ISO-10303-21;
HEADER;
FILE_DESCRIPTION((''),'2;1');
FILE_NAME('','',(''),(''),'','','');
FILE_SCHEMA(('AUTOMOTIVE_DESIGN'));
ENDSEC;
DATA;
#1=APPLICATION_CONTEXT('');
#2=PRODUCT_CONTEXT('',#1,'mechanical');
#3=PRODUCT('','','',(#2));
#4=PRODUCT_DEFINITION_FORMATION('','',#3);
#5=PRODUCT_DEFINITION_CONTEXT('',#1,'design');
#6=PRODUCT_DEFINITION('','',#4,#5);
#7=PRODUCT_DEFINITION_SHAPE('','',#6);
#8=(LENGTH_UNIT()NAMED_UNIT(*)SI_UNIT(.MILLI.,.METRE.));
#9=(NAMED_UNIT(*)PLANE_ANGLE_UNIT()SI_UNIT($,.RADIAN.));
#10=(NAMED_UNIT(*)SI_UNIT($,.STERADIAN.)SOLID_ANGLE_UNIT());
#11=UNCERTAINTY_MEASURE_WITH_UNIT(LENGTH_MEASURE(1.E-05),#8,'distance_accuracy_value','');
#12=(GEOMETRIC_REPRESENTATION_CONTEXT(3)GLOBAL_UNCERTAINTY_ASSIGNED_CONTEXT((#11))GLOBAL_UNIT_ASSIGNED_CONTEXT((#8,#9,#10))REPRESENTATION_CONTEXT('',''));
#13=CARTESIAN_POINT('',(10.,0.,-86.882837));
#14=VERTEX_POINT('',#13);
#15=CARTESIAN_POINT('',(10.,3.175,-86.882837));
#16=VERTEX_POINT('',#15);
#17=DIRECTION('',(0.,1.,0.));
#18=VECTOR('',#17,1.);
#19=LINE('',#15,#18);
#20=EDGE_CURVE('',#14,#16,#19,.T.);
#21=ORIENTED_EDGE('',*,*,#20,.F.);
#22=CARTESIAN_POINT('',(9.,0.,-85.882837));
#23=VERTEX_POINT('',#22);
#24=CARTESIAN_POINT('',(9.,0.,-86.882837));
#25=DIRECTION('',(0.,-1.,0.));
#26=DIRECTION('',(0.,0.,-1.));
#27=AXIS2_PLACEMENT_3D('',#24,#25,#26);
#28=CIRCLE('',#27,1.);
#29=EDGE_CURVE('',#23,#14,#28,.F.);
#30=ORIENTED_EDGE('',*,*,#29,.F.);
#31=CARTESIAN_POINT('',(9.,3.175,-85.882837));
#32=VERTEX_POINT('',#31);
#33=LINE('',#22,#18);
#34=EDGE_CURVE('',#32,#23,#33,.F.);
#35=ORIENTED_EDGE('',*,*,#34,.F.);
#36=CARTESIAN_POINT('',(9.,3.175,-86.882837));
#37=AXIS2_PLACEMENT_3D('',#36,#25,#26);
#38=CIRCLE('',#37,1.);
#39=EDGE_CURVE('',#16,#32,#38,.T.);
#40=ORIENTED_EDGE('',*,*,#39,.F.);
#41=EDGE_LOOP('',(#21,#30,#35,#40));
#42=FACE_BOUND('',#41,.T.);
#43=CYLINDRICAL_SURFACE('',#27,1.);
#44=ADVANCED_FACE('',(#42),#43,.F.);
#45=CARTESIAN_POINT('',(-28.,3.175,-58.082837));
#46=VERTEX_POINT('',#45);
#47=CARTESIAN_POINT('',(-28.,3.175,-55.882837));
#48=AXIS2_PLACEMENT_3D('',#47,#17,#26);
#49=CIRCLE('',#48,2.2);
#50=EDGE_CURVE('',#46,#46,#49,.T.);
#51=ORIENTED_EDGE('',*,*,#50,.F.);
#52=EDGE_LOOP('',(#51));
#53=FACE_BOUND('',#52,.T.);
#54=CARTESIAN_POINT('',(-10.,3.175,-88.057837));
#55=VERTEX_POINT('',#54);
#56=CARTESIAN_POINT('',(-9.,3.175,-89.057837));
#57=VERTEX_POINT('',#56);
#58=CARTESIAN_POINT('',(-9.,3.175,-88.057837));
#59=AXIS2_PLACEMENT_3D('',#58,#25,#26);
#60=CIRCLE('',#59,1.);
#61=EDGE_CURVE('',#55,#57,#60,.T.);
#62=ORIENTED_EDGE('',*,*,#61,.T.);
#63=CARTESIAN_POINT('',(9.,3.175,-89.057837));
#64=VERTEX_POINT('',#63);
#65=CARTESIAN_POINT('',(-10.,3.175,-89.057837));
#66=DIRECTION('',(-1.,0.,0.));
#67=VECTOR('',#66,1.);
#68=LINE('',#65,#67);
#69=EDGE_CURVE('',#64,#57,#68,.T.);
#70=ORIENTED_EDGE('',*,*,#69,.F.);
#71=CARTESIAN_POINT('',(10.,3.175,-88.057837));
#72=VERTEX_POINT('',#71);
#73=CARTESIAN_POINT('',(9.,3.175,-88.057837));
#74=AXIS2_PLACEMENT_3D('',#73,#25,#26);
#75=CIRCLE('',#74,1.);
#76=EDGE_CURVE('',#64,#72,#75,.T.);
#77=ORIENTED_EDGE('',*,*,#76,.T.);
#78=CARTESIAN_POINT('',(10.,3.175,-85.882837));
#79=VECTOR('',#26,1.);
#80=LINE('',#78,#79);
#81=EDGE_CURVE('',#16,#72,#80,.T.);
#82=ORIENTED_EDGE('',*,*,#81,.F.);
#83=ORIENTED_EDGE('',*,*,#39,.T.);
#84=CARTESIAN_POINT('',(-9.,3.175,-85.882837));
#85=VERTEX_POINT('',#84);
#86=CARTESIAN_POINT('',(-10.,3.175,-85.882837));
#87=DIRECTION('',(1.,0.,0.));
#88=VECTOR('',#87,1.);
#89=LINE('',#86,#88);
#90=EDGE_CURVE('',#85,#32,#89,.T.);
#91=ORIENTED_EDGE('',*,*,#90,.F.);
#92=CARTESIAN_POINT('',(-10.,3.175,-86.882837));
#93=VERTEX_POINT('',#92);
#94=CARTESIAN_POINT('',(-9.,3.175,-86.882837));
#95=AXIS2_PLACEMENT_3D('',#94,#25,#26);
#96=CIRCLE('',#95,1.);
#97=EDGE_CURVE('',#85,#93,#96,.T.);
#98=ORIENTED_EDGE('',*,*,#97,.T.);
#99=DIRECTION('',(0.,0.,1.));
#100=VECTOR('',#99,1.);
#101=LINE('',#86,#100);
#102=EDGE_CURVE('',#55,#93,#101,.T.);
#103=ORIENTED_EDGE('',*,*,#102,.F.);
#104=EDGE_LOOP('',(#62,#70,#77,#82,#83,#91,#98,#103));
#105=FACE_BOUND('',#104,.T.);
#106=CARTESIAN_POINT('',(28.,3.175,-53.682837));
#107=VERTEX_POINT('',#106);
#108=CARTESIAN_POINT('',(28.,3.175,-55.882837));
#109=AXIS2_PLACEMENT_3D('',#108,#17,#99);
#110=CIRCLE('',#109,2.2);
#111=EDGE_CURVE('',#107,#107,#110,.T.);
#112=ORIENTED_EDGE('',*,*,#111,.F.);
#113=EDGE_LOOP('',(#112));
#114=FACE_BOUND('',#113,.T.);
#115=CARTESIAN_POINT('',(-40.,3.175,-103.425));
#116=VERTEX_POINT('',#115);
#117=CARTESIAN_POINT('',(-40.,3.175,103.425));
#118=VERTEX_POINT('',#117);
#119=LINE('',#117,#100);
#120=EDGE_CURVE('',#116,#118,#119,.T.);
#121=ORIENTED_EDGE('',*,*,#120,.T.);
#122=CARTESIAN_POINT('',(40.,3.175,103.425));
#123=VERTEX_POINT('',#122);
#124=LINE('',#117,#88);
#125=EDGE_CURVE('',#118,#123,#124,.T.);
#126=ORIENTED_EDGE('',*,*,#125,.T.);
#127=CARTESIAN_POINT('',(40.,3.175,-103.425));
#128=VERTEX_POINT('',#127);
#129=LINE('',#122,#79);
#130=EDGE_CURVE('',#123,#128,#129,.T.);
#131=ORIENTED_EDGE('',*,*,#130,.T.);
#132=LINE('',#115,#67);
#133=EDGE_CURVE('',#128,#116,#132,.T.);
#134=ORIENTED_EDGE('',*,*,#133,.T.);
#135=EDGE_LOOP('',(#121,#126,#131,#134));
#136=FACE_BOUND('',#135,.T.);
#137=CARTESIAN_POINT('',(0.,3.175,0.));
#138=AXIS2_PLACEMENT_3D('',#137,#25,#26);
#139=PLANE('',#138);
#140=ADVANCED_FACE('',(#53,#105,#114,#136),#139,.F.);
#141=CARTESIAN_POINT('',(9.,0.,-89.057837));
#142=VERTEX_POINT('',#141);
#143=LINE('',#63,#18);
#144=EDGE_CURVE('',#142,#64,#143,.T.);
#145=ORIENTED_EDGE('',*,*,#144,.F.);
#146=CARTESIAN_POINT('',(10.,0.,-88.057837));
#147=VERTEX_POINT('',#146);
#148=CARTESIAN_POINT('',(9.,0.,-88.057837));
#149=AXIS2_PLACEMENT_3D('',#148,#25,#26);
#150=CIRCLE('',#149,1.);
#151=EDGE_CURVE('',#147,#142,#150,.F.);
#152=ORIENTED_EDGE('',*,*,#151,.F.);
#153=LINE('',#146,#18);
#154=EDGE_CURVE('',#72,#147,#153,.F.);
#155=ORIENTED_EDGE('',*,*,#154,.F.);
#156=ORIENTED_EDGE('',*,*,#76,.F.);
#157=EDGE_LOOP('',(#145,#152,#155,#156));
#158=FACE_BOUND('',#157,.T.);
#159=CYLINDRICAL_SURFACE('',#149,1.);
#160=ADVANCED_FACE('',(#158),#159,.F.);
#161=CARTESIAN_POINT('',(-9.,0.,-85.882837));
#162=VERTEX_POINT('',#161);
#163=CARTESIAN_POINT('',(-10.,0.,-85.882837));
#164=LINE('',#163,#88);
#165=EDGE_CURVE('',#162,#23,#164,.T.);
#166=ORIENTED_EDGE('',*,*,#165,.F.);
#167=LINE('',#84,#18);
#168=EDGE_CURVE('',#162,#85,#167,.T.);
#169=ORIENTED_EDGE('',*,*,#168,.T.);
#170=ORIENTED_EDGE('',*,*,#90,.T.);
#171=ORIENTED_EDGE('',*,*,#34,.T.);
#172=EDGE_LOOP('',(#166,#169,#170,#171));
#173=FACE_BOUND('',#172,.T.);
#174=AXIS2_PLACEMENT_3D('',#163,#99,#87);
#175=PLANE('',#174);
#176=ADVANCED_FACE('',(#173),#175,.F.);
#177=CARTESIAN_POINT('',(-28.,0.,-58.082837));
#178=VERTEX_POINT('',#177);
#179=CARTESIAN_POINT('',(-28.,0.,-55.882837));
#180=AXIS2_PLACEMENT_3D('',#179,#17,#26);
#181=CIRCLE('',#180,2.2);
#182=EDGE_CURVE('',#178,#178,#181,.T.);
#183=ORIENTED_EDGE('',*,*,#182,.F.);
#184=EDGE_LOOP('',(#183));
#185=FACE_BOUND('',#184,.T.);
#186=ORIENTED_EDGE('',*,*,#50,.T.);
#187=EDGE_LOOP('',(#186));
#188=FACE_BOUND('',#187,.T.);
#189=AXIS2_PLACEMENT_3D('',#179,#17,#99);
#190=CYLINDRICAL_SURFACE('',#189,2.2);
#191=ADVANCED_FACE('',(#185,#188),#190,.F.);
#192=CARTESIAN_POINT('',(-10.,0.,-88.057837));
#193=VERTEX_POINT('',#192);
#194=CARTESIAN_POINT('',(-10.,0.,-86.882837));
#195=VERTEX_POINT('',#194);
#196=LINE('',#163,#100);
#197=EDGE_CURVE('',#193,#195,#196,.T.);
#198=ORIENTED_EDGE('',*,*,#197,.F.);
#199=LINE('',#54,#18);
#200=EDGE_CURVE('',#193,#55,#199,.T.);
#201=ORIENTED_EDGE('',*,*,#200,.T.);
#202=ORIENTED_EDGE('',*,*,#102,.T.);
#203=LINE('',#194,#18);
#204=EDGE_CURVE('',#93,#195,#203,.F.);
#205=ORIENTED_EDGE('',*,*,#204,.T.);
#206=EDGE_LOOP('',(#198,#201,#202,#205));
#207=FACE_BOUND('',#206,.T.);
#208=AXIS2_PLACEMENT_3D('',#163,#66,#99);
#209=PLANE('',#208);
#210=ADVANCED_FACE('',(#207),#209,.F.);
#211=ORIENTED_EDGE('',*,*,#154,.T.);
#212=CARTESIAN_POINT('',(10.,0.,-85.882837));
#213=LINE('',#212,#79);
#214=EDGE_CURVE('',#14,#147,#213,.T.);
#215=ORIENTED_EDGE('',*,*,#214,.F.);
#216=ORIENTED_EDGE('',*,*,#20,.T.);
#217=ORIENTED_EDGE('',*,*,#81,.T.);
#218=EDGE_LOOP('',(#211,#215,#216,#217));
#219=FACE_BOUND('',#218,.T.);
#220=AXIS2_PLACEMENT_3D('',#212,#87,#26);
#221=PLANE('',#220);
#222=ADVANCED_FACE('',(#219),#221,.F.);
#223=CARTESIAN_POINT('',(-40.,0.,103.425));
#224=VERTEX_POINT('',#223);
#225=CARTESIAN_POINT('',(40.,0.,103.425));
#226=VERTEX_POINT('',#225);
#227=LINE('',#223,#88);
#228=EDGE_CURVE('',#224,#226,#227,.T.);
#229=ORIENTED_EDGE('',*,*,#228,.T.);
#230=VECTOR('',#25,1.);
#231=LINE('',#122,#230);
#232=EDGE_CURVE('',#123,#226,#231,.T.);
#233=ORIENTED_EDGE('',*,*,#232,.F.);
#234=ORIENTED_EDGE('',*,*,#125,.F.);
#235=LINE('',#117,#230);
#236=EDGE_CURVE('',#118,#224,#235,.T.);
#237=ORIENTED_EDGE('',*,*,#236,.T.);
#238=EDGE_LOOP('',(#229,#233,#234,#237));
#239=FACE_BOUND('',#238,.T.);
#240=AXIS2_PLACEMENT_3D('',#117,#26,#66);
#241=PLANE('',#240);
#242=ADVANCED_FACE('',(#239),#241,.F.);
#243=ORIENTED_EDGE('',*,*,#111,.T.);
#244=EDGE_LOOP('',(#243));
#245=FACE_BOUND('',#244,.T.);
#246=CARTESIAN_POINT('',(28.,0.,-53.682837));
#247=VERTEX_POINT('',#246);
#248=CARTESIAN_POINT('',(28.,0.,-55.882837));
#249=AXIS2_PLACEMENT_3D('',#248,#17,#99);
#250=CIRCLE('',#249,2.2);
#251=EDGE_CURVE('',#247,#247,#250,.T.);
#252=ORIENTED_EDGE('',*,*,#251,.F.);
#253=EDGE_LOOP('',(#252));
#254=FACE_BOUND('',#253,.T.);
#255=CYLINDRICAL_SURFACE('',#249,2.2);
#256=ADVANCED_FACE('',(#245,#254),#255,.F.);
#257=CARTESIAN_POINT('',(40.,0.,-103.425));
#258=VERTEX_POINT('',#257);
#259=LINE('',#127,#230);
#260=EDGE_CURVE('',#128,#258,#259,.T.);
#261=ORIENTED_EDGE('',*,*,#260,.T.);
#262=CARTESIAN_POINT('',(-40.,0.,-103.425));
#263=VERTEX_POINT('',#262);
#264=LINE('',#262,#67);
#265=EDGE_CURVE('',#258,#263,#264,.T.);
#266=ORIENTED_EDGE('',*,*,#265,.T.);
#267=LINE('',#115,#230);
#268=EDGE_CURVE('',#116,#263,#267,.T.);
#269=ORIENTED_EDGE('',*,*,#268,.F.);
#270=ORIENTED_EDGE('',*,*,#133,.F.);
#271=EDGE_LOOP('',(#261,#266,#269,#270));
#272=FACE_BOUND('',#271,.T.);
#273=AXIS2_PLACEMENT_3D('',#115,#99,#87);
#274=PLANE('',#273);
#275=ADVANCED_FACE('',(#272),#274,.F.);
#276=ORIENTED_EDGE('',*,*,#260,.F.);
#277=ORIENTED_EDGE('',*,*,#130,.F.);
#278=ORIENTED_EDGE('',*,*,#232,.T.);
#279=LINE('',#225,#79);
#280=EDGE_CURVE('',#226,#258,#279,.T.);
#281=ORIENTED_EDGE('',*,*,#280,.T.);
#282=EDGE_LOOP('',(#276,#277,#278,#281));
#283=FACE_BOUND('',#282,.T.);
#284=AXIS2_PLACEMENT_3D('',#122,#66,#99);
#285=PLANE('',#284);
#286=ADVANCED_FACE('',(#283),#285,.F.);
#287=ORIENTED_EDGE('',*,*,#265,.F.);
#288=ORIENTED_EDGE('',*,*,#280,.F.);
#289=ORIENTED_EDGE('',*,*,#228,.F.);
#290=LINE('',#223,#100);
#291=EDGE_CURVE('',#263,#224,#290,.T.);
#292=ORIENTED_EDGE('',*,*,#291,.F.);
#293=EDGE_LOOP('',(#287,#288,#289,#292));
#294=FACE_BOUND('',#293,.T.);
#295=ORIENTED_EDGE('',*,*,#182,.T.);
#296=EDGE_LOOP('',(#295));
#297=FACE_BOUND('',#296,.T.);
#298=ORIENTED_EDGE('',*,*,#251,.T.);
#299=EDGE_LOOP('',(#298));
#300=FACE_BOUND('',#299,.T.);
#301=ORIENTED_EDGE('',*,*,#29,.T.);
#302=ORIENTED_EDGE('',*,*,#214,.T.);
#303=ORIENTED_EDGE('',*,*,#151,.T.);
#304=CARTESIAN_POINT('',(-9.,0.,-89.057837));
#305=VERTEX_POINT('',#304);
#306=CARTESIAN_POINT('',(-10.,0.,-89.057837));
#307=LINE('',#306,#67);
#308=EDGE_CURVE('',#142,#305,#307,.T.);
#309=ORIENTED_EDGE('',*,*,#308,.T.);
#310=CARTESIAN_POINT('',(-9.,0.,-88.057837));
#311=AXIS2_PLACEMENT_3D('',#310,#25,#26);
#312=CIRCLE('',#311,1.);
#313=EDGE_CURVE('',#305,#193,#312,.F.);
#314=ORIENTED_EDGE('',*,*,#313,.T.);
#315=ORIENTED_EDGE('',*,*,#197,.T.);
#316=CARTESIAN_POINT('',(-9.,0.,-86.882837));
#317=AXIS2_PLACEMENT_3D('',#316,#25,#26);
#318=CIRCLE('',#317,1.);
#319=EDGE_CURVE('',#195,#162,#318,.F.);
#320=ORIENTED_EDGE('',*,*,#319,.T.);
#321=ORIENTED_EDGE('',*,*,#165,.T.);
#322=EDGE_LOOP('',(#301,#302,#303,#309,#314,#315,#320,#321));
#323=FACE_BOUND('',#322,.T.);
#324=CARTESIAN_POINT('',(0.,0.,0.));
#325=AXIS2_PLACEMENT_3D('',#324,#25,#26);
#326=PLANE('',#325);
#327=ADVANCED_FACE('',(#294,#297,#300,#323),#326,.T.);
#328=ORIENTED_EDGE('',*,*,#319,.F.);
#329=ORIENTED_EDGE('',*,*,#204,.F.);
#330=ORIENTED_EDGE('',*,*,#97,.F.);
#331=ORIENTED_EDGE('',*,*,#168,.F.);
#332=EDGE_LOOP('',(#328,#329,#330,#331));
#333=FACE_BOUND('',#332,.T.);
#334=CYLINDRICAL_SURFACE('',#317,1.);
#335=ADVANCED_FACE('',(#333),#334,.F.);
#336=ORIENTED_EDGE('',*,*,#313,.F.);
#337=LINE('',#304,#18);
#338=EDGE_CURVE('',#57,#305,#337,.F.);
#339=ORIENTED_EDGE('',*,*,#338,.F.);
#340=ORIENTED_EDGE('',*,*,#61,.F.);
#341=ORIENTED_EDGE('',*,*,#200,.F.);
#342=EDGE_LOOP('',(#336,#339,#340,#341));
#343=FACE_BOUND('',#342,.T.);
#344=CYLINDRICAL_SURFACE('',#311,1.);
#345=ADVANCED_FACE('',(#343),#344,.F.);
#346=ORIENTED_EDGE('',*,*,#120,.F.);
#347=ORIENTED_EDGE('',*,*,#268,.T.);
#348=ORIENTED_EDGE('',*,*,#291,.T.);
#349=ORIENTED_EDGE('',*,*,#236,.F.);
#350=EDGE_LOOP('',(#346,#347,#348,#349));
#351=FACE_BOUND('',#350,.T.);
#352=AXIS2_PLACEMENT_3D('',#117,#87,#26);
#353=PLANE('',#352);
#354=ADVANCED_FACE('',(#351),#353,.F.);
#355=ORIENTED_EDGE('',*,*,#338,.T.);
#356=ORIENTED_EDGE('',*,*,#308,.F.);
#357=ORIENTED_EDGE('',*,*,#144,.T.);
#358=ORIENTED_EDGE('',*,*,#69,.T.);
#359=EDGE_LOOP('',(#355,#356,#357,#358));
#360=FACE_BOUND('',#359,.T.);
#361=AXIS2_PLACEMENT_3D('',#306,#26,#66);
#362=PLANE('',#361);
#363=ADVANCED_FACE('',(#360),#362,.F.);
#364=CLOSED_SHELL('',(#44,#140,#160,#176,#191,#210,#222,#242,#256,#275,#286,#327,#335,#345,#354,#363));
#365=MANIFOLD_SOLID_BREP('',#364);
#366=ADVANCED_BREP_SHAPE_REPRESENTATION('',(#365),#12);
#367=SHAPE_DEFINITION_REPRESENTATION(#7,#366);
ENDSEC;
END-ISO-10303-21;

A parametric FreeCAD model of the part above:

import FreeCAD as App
import Part
import Sketcher

V = App.Vector
Q = App.Units.Quantity


def edges_at(feature, points):
    """Names of the edges that pass closest to the given points."""
    edges = feature.Shape.Edges
    near = lambda p: min(range(len(edges)), key=lambda i: edges[i].distToShape(Part.Vertex(*p))[0])
    return sorted({f"Edge{near(p) + 1}" for p in points})

doc = App.newDocument("Part")
body = doc.addObject("PartDesign::Body", "Body")

# Sketch on XZ plane
sketch1 = body.newObject("Sketcher::SketchObject", "Sketch")
sketch1.AttachmentSupport = (doc.getObject("XZ_Plane"), [""])
sketch1.MapMode = "FlatFace"
sketch1.addGeometry([
    Part.LineSegment(V(-40, -103, 0), V(-40, 103, 0)),
    Part.LineSegment(V(-40, 103, 0), V(40, 103, 0)),
    Part.LineSegment(V(40, 103, 0), V(40, -103, 0)),
    Part.LineSegment(V(40, -103, 0), V(-40, -103, 0)),
], False)
sketch1.addConstraint([
    Sketcher.Constraint("Coincident", 0, 2, 1, 1),
    Sketcher.Constraint("Coincident", 1, 2, 2, 1),
    Sketcher.Constraint("Coincident", 2, 2, 3, 1),
    Sketcher.Constraint("Coincident", 3, 2, 0, 1),
    Sketcher.Constraint("Vertical", 0),
    Sketcher.Constraint("Horizontal", 1),
    Sketcher.Constraint("Vertical", 2),
    Sketcher.Constraint("Horizontal", 3),
    Sketcher.Constraint("Symmetric", 0, 2, 2, 2, -1, 1),
    Sketcher.Constraint("DistanceX", 1, 1, 1, 2, Q("80 mm")),
    Sketcher.Constraint("DistanceY", 0, 1, 0, 2, Q("206.85 mm")),
])
pad1 = body.newObject("PartDesign::Pad", "Pad")
pad1.Profile = sketch1
pad1.Length = 3.175
pad1.Reversed = True

# Sketch on XZ plane
sketch2 = body.newObject("Sketcher::SketchObject", "Sketch001")
sketch2.AttachmentSupport = (doc.getObject("XZ_Plane"), [""])
sketch2.MapMode = "FlatFace"
sketch2.AttachmentOffset = App.Placement(V(0, 0, -3.175), App.Rotation())
sketch2.addGeometry([
    Part.Circle(V(28, -55.9, 0), V(0, 0, 1), 2.2),  # 0
    Part.Circle(V(-28, -55.9, 0), V(0, 0, 1), 2.2),  # 1
    Part.LineSegment(V(-10, -89.1, 0), V(-10, -85.9, 0)),  # 2
    Part.LineSegment(V(-10, -85.9, 0), V(10, -85.9, 0)),  # 3
    Part.LineSegment(V(10, -85.9, 0), V(10, -89.1, 0)),  # 4
    Part.LineSegment(V(10, -89.1, 0), V(-10, -89.1, 0)),  # 5
], False)
sketch2.addConstraint([
    Sketcher.Constraint("Coincident", 2, 2, 3, 1),
    Sketcher.Constraint("Coincident", 3, 2, 4, 1),
    Sketcher.Constraint("Coincident", 4, 2, 5, 1),
    Sketcher.Constraint("Coincident", 5, 2, 2, 1),
    Sketcher.Constraint("Vertical", 2),
    Sketcher.Constraint("Horizontal", 3),
    Sketcher.Constraint("Vertical", 4),
    Sketcher.Constraint("Horizontal", 5),
    Sketcher.Constraint("Equal", 0, 1),
    Sketcher.Constraint("Symmetric", 0, 3, 1, 3, -2),
    Sketcher.Constraint("Diameter", 0, Q("4.4 mm")),
    Sketcher.Constraint("DistanceX", 3, 1, 3, 2, Q("20 mm")),
    Sketcher.Constraint("DistanceX", -1, 1, 0, 3, Q("28 mm")),
    Sketcher.Constraint("DistanceX", 2, 2, -1, 1, Q("10 mm")),
    Sketcher.Constraint("DistanceY", 2, 2, 1, 3, Q("30 mm")),
    Sketcher.Constraint("DistanceY", 2, 1, 2, 2, Q("3.175 mm")),
    Sketcher.Constraint("DistanceY", 0, 3, -1, 1, Q("55.882837 mm")),
])
pocket1 = body.newObject("PartDesign::Pocket", "Pocket")
pocket1.Profile = sketch2
pocket1.Type = "ThroughAll"
pocket1.Reversed = True
doc.recompute()

fillet = body.newObject("PartDesign::Fillet", "Fillet")
fillet.Base = (pocket1, edges_at(pocket1, [
    (10, 1.587, -89.058),
    (10, 1.587, -85.883),
    (-10, 1.587, -85.883),
    (-10, 1.587, -89.058),
]))
fillet.Radius = 1

doc.recompute()
